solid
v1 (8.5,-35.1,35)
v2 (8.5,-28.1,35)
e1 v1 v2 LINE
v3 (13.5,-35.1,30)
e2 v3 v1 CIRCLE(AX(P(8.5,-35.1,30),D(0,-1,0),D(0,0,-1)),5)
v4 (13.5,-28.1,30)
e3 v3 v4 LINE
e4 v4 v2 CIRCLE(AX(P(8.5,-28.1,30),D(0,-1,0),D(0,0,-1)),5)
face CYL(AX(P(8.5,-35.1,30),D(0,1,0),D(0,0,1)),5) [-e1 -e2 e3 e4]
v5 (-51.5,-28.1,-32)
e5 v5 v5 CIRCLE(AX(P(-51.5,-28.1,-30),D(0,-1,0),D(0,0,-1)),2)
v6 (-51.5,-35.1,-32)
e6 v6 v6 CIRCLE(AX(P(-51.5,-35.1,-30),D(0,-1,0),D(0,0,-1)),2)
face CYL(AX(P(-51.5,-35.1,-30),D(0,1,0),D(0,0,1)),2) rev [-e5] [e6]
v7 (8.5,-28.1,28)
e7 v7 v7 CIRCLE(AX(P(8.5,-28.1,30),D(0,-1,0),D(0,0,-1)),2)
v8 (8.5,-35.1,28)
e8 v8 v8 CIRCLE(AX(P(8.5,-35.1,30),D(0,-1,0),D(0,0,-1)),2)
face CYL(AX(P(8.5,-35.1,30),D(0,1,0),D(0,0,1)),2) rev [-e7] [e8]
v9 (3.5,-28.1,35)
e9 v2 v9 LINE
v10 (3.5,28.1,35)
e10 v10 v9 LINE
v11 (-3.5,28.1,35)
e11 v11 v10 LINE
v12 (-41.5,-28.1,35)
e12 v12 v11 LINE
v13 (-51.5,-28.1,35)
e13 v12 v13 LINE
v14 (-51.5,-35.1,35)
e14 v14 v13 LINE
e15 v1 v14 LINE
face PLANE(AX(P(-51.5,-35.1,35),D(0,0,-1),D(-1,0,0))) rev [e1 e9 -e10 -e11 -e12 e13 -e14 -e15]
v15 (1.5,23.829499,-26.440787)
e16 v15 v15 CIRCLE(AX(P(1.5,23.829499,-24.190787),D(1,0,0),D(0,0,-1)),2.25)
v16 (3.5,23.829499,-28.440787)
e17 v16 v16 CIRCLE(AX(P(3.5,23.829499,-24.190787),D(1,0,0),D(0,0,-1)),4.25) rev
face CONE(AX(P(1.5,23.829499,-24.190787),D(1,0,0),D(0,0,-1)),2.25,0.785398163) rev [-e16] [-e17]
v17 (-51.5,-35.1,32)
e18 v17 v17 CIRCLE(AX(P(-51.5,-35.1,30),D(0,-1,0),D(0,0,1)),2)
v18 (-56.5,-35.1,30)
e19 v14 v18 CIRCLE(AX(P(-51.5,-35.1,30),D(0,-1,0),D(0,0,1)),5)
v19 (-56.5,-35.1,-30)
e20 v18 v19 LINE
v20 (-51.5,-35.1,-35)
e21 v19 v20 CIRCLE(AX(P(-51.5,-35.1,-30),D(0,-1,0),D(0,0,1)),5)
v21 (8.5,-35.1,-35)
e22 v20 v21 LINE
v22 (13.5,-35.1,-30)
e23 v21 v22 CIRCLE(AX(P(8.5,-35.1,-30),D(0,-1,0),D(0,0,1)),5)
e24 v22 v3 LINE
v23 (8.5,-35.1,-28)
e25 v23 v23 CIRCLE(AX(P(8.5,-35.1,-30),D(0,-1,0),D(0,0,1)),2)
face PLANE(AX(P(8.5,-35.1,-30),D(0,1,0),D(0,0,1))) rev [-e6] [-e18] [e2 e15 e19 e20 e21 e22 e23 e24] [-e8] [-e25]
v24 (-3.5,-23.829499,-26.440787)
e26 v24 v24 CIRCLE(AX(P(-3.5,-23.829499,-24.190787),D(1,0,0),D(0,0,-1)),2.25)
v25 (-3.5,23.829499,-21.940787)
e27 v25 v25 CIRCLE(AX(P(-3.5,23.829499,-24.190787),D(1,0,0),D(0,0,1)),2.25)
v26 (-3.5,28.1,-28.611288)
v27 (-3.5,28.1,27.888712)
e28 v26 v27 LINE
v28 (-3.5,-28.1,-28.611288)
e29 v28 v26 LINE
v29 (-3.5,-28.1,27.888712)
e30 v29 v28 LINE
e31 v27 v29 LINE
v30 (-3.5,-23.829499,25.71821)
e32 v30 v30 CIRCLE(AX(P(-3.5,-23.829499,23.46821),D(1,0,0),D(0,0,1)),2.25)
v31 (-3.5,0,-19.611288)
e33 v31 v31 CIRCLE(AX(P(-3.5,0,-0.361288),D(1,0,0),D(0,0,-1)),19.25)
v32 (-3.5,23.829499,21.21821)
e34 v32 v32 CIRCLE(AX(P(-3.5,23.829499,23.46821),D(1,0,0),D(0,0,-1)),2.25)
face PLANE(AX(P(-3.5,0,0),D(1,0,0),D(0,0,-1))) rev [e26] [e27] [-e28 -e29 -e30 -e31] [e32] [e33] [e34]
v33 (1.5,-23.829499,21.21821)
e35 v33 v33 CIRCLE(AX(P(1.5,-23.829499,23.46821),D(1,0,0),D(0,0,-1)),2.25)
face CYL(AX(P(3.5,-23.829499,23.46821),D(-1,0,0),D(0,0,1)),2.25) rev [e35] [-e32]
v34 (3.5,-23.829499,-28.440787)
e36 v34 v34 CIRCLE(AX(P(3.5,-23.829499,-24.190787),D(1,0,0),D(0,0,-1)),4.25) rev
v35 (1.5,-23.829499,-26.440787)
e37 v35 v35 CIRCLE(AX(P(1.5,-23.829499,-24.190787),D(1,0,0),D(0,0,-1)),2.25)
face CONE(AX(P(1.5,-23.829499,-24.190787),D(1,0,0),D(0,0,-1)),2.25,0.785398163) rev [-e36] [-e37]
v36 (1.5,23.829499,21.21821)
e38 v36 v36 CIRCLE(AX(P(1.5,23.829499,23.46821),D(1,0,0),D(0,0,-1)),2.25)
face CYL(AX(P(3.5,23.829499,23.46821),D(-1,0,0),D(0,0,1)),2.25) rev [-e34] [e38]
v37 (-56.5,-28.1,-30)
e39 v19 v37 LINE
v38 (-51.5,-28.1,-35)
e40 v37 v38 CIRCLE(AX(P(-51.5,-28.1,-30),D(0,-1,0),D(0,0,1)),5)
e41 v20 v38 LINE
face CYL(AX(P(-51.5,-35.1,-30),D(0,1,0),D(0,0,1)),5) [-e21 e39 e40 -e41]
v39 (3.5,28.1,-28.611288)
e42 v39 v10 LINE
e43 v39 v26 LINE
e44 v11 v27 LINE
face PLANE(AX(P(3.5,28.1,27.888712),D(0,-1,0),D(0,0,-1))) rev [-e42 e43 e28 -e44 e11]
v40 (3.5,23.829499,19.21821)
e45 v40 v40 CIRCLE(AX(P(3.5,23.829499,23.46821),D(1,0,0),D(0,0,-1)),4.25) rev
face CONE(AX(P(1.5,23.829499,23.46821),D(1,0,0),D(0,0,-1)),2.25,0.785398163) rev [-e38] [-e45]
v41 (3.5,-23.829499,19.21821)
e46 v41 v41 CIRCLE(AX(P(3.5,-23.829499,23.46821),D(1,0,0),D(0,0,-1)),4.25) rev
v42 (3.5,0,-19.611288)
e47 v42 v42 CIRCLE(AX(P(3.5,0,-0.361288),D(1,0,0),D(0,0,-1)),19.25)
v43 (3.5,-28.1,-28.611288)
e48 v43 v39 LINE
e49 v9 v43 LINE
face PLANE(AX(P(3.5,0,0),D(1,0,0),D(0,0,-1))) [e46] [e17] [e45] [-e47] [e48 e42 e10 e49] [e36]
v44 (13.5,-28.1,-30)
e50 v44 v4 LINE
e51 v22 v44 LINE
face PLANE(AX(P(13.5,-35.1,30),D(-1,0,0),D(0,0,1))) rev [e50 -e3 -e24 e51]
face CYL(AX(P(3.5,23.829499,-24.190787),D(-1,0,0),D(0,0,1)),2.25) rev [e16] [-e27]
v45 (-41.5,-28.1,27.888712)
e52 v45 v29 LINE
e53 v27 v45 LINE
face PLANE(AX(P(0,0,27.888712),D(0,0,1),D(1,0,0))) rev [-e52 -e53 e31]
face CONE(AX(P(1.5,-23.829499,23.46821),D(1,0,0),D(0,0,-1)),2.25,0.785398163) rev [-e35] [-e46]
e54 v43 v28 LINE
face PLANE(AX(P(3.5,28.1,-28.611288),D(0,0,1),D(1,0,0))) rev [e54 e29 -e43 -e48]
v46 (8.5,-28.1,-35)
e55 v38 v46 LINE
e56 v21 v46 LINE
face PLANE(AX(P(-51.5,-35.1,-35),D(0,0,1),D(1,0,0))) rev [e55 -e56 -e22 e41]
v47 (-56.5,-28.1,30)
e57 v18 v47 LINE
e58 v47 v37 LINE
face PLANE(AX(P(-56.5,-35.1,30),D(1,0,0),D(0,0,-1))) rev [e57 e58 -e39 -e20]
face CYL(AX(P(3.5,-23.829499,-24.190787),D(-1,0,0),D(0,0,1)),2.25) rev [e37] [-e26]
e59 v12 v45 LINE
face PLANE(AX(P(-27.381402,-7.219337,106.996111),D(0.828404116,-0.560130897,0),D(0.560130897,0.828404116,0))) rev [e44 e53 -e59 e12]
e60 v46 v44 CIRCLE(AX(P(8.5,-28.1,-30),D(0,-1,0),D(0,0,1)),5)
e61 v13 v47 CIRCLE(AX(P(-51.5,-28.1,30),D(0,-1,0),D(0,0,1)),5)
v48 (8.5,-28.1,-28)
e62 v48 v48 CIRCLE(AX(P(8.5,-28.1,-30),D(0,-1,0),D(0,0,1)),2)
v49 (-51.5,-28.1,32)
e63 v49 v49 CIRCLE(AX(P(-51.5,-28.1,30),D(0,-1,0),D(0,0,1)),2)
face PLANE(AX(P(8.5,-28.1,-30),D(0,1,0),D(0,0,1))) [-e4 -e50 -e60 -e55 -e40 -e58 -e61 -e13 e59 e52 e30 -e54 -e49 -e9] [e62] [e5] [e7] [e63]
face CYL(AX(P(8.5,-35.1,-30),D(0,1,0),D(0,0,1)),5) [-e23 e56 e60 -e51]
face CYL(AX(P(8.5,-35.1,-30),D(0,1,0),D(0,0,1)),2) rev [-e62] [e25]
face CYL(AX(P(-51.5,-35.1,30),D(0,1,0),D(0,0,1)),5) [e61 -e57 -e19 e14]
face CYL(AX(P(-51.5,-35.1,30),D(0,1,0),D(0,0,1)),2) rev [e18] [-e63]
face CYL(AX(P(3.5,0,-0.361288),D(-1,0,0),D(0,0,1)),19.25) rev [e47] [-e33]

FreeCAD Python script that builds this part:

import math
import FreeCAD as App
import Part
import Sketcher
Q = App.Units.Quantity


def edges_at(feature, points):
    """Names of the edges that pass closest to the given points."""
    edges = feature.Shape.Edges
    near = lambda p: min(range(len(edges)), key=lambda i: edges[i].distToShape(Part.Vertex(*p))[0])
    return sorted({f"Edge{near(p) + 1}" for p in points})


def add_polygon(sketch, points):
    """Adds a closed chain of lines whose ends are joined by coincident constraints."""
    first, n = sketch.GeometryCount, len(points)
    for a, b in zip(points, points[1:] + points[:1]):
        sketch.addGeometry(Part.LineSegment(App.Vector(*a, 0), App.Vector(*b, 0)), False)
    for i in range(n):
        sketch.addConstraint(Sketcher.Constraint("Coincident", first + i, 2, first + (i + 1) % n, 1))

doc = App.newDocument("Part")
body = doc.addObject("PartDesign::Body", "Body")

sketch1 = doc.addObject("Sketcher::SketchObject", "Sketch")
body.addObject(sketch1)
sketch1.AttachmentSupport = (doc.YZ_Plane, [""])
sketch1.MapMode = "FlatFace"
add_polygon(sketch1, [(28.1, 27.888712), (-28.1, 27.888712), (-28.1, -28.611288), (28.1, -28.611288)])
sketch1.addGeometry(Part.Circle(App.Vector(-23.829499, 23.46821, 0), App.Vector(0, 0, 1), 2.25), False)
sketch1.addGeometry(Part.Circle(App.Vector(-23.829499, -24.190787, 0), App.Vector(0, 0, 1), 2.25), False)
sketch1.addGeometry(Part.Circle(App.Vector(0, -0.361288, 0), App.Vector(0, 0, 1), 19.25), False)
sketch1.addGeometry(Part.Circle(App.Vector(23.829499, 23.46821, 0), App.Vector(0, 0, 1), 2.25), False)
sketch1.addGeometry(Part.Circle(App.Vector(23.829499, -24.190787, 0), App.Vector(0, 0, 1), 2.25), False)
sketch1.addConstraint([
    Sketcher.Constraint("Horizontal", 0),
    Sketcher.Constraint("Vertical", 1),
    Sketcher.Constraint("Horizontal", 2),
    Sketcher.Constraint("Vertical", 3),
    Sketcher.Constraint("Equal", 4, 5),
    Sketcher.Constraint("Equal", 5, 7),
    Sketcher.Constraint("Equal", 7, 8),
    Sketcher.Constraint("Symmetric", 4, 3, 7, 3, -2),
    Sketcher.Constraint("Symmetric", 5, 3, 8, 3, -2),
    Sketcher.Constraint("PointOnObject", 6, 3, -2),
    Sketcher.Constraint("Vertical", 4, 3, 5, 3),
    Sketcher.Constraint("Diameter", 4, Q("4.5 mm")),
    Sketcher.Constraint("Diameter", 6, Q("38.5 mm")),
    Sketcher.Constraint("DistanceX", 0, 2, 0, 1, Q("56.2 mm")),
    Sketcher.Constraint("DistanceY", 1, 2, 1, 1, Q("56.5 mm")),
    Sketcher.Constraint("DistanceX", 0, 2, -1, 1, Q("28.1 mm")),
    Sketcher.Constraint("DistanceY", 6, 3, 0, 2, Q("28.25 mm")),
    Sketcher.Constraint("DistanceX", 4, 3, -1, 1, Q("23.829499 mm")),
    Sketcher.Constraint("DistanceY", 6, 3, 4, 3, Q("23.829499 mm")),
    Sketcher.Constraint("DistanceY", 5, 3, 6, 3, Q("23.829499 mm")),
    Sketcher.Constraint("DistanceY", -1, 1, 4, 3, Q("23.46821 mm")),
])
pad1 = doc.addObject("PartDesign::Pad", "Pad")
body.addObject(pad1)
pad1.Profile = sketch1
pad1.Length = 7
pad1.Midplane = True

sketch2 = doc.addObject("Sketcher::SketchObject", "Sketch001")
body.addObject(sketch2)
sketch2.AttachmentSupport = (doc.XZ_Plane, [""])
sketch2.MapMode = "FlatFace"
sketch2.AttachmentOffset = App.Placement(App.Vector(0, 0, 28.1), App.Rotation())
sketch2.addGeometry([
    Part.LineSegment(App.Vector(8.5, 35, 0), App.Vector(-51.5, 35, 0)),
    Part.ArcOfCircle(Part.Circle(App.Vector(-51.5, 30, 0), App.Vector(0, 0, 1), 5), math.radians(90), math.radians(180)),
    Part.LineSegment(App.Vector(-56.5, 30, 0), App.Vector(-56.5, -30, 0)),
    Part.ArcOfCircle(Part.Circle(App.Vector(-51.5, -30, 0), App.Vector(0, 0, 1), 5), math.radians(180), math.radians(270)),
    Part.LineSegment(App.Vector(-51.5, -35, 0), App.Vector(8.5, -35, 0)),
    Part.ArcOfCircle(Part.Circle(App.Vector(8.5, -30, 0), App.Vector(0, 0, 1), 5), math.radians(-90), math.radians(0)),
    Part.LineSegment(App.Vector(13.5, -30, 0), App.Vector(13.5, 30, 0)),
    Part.ArcOfCircle(Part.Circle(App.Vector(8.5, 30, 0), App.Vector(0, 0, 1), 5), math.radians(0), math.radians(90)),
    Part.Circle(App.Vector(8.5, -30, 0), App.Vector(0, 0, 1), 2),
    Part.Circle(App.Vector(-51.5, -30, 0), App.Vector(0, 0, 1), 2),
    Part.Circle(App.Vector(8.5, 30, 0), App.Vector(0, 0, 1), 2),
    Part.Circle(App.Vector(-51.5, 30, 0), App.Vector(0, 0, 1), 2),
], False)
sketch2.addConstraint([
    Sketcher.Constraint("Tangent", 0, 2, 1, 1),
    Sketcher.Constraint("Tangent", 1, 2, 2, 1),
    Sketcher.Constraint("Tangent", 2, 2, 3, 1),
    Sketcher.Constraint("Tangent", 3, 2, 4, 1),
    Sketcher.Constraint("Tangent", 4, 2, 5, 1),
    Sketcher.Constraint("Tangent", 5, 2, 6, 1),
    Sketcher.Constraint("Tangent", 6, 2, 7, 1),
    Sketcher.Constraint("Tangent", 7, 2, 0, 1),
    Sketcher.Constraint("Horizontal", 0),
    Sketcher.Constraint("Vertical", 2),
    Sketcher.Constraint("Horizontal", 4),
    Sketcher.Constraint("Vertical", 6),
    Sketcher.Constraint("Coincident", 8, 3, 5, 3),
    Sketcher.Constraint("Coincident", 9, 3, 3, 3),
    Sketcher.Constraint("Coincident", 10, 3, 7, 3),
    Sketcher.Constraint("Coincident", 11, 3, 1, 3),
    Sketcher.Constraint("Equal", 1, 3),
    Sketcher.Constraint("Equal", 3, 5),
    Sketcher.Constraint("Equal", 5, 7),
    Sketcher.Constraint("Equal", 8, 9),
    Sketcher.Constraint("Equal", 9, 10),
    Sketcher.Constraint("Equal", 10, 11),
    Sketcher.Constraint("Equal", 4, 2),
    Sketcher.Constraint("Diameter", 8, Q("4 mm")),
    Sketcher.Constraint("Radius", 1, Q("5 mm")),
    Sketcher.Constraint("DistanceX", 0, 2, 0, 1, Q("60 mm")),
    Sketcher.Constraint("DistanceY", -1, 1, 1, 3, Q("30 mm")),
    Sketcher.Constraint("DistanceX", 1, 3, -1, 1, Q("51.5 mm")),
])
pad2 = doc.addObject("PartDesign::Pad", "Pad001")
body.addObject(pad2)
pad2.Profile = sketch2
pad2.Length = 7

sketch3 = doc.addObject("Sketcher::SketchObject", "Sketch002")
body.addObject(sketch3)
sketch3.AttachmentSupport = (doc.XY_Plane, [""])
sketch3.MapMode = "FlatFace"
sketch3.AttachmentOffset = App.Placement(App.Vector(0, 0, 35), App.Rotation())
add_polygon(sketch3, [(-3.5, 28.1), (-41.5, -28.1), (3.5, -28.1), (3.5, 28.1)])
sketch3.addConstraint([
    Sketcher.Constraint("Horizontal", 1),
    Sketcher.Constraint("Vertical", 2),
    Sketcher.Constraint("Horizontal", 3),
    Sketcher.Constraint("Symmetric", 1, 2, 3, 2, -1, 1),
    Sketcher.Constraint("DistanceX", 1, 1, 1, 2, Q("45 mm")),
    Sketcher.Constraint("DistanceX", 3, 2, 3, 1, Q("7 mm")),
    Sketcher.Constraint("DistanceY", 2, 1, 2, 2, Q("56.2 mm")),
])
pad3 = doc.addObject("PartDesign::Pad", "Pad002")
body.addObject(pad3)
pad3.Profile = sketch3
pad3.Length = 7.111288
pad3.Reversed = True
doc.recompute()

chamfer = doc.addObject("PartDesign::Chamfer", "Chamfer")
body.addObject(chamfer)
chamfer.Base = (pad3, edges_at(pad3, [
    (3.5, 23.829, 25.718),
    (3.5, 23.829, -26.441),
    (3.5, -23.829, -21.941),
    (3.5, -23.829, 21.218),
]))
chamfer.Size = 2

doc.recompute()
